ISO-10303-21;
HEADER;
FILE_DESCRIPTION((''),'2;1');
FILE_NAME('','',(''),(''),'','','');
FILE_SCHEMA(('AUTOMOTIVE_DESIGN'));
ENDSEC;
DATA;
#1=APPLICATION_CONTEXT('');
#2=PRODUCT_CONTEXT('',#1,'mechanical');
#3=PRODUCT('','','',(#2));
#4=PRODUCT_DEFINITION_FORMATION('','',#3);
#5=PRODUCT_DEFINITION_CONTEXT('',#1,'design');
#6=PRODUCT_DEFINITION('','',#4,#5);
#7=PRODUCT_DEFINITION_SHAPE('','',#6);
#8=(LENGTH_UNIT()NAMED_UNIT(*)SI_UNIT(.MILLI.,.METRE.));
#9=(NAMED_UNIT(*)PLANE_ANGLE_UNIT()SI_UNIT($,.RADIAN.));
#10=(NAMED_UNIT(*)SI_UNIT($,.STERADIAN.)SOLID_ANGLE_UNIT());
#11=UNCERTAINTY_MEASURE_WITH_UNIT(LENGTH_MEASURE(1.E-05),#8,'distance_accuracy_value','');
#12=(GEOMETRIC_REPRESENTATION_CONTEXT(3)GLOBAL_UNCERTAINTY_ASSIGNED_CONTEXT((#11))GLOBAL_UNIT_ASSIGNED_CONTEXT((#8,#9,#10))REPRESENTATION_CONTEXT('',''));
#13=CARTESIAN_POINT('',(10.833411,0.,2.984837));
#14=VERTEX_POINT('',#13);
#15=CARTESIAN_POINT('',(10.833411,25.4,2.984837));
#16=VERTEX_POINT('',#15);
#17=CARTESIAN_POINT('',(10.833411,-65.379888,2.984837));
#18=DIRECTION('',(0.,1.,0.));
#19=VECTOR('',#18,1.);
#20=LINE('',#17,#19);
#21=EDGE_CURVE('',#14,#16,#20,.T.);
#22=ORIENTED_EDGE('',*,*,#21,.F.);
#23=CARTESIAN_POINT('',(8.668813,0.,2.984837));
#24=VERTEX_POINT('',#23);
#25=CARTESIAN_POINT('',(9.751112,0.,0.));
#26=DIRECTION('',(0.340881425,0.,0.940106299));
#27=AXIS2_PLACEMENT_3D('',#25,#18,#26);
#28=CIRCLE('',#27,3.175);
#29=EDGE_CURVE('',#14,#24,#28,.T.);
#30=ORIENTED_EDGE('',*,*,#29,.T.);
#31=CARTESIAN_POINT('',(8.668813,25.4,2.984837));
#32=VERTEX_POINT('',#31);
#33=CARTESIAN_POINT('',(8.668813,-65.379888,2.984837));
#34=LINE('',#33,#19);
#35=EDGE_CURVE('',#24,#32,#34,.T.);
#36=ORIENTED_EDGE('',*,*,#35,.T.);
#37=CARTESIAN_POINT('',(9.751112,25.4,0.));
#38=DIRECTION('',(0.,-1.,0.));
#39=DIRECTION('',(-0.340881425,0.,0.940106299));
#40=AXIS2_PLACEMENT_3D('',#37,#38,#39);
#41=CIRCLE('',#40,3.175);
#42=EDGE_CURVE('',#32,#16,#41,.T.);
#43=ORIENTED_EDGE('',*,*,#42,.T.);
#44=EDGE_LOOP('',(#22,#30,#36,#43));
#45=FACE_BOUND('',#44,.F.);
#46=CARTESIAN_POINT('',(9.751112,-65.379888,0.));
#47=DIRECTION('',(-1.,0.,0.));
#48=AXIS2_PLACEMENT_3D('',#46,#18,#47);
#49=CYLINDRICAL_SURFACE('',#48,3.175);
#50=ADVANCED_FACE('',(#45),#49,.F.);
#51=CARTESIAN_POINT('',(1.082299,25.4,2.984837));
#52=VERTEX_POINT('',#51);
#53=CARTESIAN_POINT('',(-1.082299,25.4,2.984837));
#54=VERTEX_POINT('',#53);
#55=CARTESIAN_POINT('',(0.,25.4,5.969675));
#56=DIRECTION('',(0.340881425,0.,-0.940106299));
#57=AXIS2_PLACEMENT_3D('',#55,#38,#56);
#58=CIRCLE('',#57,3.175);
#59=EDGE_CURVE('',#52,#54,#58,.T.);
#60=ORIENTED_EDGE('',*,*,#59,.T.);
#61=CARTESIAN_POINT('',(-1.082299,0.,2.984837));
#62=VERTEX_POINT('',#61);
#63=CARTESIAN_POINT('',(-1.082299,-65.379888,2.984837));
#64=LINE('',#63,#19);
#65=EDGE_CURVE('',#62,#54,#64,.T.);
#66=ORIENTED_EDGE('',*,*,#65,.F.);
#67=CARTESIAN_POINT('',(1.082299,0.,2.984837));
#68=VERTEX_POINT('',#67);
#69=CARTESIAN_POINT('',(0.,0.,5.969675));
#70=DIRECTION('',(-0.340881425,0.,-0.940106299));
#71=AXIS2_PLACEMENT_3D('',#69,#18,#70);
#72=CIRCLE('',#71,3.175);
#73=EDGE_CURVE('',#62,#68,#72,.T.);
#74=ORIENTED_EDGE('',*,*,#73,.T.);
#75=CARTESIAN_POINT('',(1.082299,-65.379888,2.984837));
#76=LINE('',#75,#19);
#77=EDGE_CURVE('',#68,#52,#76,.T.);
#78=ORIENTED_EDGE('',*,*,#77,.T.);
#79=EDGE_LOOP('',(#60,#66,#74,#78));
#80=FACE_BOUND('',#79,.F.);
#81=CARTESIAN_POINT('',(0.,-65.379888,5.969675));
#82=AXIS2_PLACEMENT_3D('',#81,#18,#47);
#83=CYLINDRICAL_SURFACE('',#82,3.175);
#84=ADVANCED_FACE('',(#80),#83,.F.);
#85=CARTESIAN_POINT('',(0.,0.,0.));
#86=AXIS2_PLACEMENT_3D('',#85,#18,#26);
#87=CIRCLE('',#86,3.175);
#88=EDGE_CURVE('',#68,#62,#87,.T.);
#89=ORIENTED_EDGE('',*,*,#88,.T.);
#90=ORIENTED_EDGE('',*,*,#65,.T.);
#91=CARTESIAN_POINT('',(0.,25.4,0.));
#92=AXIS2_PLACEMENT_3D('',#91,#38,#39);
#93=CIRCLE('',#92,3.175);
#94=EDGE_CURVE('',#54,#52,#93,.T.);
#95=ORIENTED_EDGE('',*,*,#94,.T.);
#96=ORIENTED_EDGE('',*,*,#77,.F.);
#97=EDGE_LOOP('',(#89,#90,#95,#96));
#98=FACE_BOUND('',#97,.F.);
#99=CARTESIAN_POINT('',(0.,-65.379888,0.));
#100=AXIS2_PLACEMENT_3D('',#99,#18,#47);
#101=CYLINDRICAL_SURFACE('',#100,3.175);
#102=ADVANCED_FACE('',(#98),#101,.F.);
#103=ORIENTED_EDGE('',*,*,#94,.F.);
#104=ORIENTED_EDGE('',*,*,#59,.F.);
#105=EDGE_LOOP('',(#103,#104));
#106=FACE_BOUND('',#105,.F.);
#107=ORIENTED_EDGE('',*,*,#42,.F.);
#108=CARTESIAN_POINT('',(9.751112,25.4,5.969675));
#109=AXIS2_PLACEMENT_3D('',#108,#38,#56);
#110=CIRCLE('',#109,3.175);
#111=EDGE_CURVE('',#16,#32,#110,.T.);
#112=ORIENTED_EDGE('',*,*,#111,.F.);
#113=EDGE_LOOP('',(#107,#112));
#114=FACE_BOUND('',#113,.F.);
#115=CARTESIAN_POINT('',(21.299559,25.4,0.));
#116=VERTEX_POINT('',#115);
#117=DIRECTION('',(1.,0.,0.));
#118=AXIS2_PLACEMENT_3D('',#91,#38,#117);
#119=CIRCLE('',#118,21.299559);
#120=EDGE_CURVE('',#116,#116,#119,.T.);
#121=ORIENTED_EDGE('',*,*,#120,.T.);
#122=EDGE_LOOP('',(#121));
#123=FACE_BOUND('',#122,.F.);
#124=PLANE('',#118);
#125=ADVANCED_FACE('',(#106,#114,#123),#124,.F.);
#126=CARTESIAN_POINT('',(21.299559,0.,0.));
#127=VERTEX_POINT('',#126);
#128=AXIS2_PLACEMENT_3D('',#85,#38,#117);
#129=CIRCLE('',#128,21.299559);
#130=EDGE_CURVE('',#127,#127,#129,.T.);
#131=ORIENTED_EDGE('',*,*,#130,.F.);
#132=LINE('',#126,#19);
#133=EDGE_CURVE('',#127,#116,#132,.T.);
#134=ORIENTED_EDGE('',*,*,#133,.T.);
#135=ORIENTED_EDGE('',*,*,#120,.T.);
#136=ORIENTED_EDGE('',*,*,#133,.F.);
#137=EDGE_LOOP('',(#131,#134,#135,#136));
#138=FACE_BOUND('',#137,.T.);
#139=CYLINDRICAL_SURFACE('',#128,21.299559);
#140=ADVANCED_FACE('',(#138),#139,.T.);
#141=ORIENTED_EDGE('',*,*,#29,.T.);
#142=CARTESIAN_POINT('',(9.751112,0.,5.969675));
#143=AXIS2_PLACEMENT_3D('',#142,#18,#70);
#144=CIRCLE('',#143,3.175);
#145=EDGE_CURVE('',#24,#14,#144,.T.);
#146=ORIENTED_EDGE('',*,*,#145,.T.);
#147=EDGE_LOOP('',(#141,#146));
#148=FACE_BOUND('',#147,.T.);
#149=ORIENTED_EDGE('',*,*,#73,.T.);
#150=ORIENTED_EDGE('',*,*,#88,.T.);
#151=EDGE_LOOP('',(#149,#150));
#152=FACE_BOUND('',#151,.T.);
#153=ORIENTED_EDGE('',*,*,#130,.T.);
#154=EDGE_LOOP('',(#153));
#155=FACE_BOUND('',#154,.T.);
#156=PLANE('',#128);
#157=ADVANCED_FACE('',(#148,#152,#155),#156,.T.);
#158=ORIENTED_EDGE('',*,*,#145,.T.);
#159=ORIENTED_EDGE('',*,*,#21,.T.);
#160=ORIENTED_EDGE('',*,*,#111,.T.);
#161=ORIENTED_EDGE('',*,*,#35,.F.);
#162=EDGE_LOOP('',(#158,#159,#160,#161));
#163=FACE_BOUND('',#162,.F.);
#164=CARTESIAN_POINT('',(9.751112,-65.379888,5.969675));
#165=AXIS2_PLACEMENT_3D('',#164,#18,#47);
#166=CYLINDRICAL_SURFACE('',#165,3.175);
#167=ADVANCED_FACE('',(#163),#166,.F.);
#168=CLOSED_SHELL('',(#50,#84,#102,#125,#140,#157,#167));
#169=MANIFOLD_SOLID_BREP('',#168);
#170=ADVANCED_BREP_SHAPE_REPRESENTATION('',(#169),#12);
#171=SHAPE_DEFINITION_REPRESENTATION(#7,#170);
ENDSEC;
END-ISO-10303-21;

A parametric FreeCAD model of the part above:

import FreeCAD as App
import Part
import Sketcher

V = App.Vector
Q = App.Units.Quantity

doc = App.newDocument("Part")
body = doc.addObject("PartDesign::Body", "Body")

sketch1 = doc.addObject("Sketcher::SketchObject", "Sketch")
body.addObject(sketch1)
sketch1.AttachmentSupport = (doc.XZ_Plane, [""])
sketch1.MapMode = "FlatFace"
sketch1.addGeometry(Part.Circle(V(0, 0, 0), V(0, 0, 1), 21.299559), False)
sketch1.addConstraint([
    Sketcher.Constraint("Coincident", 0, 3, -1, 1),
    Sketcher.Constraint("Diameter", 0, Q("42.599118 mm")),
])
pad1 = doc.addObject("PartDesign::Pad", "Pad")
body.addObject(pad1)
pad1.Profile = sketch1
pad1.Length = Q("1 in")
pad1.Reversed = True

sketch2 = doc.addObject("Sketcher::SketchObject", "Sketch001")
body.addObject(sketch2)
sketch2.AttachmentSupport = (doc.XZ_Plane, [""])
sketch2.MapMode = "FlatFace"
sketch2.addGeometry([
    Part.Circle(V(9.751112, 0, 0), V(0, 0, 1), 3.175),
    Part.Circle(V(9.751112, 5.969675, 0), V(0, 0, 1), 3.175),
    Part.Circle(V(0, 0, 0), V(0, 0, 1), 3.175),
    Part.Circle(V(0, 5.969675, 0), V(0, 0, 1), 3.175),
], False)
sketch2.addConstraint([
    Sketcher.Constraint("Coincident", 2, 3, -1, 1),
    Sketcher.Constraint("Equal", 0, 1),
    Sketcher.Constraint("Equal", 1, 2),
    Sketcher.Constraint("Equal", 2, 3),
    Sketcher.Constraint("PointOnObject", 0, 3, -1),
    Sketcher.Constraint("PointOnObject", 3, 3, -2),
    Sketcher.Constraint("Horizontal", 1, 3, 3, 3),
    Sketcher.Constraint("Vertical", 0, 3, 1, 3),
    Sketcher.Constraint("Diameter", 0, Q("0.25 in")),
    Sketcher.Constraint("DistanceX", -1, 1, 0, 3, Q("9.751112 mm")),
    Sketcher.Constraint("DistanceY", -1, 1, 1, 3, Q("5.969675 mm")),
])
doc.recompute()
hole = doc.addObject("PartDesign::Hole", "Hole")
body.addObject(hole)
hole.Profile = sketch2
hole.ThreadType = "None"
hole.Diameter = Q("0.25 in")
hole.DepthType = "ThroughAll"

doc.recompute()
